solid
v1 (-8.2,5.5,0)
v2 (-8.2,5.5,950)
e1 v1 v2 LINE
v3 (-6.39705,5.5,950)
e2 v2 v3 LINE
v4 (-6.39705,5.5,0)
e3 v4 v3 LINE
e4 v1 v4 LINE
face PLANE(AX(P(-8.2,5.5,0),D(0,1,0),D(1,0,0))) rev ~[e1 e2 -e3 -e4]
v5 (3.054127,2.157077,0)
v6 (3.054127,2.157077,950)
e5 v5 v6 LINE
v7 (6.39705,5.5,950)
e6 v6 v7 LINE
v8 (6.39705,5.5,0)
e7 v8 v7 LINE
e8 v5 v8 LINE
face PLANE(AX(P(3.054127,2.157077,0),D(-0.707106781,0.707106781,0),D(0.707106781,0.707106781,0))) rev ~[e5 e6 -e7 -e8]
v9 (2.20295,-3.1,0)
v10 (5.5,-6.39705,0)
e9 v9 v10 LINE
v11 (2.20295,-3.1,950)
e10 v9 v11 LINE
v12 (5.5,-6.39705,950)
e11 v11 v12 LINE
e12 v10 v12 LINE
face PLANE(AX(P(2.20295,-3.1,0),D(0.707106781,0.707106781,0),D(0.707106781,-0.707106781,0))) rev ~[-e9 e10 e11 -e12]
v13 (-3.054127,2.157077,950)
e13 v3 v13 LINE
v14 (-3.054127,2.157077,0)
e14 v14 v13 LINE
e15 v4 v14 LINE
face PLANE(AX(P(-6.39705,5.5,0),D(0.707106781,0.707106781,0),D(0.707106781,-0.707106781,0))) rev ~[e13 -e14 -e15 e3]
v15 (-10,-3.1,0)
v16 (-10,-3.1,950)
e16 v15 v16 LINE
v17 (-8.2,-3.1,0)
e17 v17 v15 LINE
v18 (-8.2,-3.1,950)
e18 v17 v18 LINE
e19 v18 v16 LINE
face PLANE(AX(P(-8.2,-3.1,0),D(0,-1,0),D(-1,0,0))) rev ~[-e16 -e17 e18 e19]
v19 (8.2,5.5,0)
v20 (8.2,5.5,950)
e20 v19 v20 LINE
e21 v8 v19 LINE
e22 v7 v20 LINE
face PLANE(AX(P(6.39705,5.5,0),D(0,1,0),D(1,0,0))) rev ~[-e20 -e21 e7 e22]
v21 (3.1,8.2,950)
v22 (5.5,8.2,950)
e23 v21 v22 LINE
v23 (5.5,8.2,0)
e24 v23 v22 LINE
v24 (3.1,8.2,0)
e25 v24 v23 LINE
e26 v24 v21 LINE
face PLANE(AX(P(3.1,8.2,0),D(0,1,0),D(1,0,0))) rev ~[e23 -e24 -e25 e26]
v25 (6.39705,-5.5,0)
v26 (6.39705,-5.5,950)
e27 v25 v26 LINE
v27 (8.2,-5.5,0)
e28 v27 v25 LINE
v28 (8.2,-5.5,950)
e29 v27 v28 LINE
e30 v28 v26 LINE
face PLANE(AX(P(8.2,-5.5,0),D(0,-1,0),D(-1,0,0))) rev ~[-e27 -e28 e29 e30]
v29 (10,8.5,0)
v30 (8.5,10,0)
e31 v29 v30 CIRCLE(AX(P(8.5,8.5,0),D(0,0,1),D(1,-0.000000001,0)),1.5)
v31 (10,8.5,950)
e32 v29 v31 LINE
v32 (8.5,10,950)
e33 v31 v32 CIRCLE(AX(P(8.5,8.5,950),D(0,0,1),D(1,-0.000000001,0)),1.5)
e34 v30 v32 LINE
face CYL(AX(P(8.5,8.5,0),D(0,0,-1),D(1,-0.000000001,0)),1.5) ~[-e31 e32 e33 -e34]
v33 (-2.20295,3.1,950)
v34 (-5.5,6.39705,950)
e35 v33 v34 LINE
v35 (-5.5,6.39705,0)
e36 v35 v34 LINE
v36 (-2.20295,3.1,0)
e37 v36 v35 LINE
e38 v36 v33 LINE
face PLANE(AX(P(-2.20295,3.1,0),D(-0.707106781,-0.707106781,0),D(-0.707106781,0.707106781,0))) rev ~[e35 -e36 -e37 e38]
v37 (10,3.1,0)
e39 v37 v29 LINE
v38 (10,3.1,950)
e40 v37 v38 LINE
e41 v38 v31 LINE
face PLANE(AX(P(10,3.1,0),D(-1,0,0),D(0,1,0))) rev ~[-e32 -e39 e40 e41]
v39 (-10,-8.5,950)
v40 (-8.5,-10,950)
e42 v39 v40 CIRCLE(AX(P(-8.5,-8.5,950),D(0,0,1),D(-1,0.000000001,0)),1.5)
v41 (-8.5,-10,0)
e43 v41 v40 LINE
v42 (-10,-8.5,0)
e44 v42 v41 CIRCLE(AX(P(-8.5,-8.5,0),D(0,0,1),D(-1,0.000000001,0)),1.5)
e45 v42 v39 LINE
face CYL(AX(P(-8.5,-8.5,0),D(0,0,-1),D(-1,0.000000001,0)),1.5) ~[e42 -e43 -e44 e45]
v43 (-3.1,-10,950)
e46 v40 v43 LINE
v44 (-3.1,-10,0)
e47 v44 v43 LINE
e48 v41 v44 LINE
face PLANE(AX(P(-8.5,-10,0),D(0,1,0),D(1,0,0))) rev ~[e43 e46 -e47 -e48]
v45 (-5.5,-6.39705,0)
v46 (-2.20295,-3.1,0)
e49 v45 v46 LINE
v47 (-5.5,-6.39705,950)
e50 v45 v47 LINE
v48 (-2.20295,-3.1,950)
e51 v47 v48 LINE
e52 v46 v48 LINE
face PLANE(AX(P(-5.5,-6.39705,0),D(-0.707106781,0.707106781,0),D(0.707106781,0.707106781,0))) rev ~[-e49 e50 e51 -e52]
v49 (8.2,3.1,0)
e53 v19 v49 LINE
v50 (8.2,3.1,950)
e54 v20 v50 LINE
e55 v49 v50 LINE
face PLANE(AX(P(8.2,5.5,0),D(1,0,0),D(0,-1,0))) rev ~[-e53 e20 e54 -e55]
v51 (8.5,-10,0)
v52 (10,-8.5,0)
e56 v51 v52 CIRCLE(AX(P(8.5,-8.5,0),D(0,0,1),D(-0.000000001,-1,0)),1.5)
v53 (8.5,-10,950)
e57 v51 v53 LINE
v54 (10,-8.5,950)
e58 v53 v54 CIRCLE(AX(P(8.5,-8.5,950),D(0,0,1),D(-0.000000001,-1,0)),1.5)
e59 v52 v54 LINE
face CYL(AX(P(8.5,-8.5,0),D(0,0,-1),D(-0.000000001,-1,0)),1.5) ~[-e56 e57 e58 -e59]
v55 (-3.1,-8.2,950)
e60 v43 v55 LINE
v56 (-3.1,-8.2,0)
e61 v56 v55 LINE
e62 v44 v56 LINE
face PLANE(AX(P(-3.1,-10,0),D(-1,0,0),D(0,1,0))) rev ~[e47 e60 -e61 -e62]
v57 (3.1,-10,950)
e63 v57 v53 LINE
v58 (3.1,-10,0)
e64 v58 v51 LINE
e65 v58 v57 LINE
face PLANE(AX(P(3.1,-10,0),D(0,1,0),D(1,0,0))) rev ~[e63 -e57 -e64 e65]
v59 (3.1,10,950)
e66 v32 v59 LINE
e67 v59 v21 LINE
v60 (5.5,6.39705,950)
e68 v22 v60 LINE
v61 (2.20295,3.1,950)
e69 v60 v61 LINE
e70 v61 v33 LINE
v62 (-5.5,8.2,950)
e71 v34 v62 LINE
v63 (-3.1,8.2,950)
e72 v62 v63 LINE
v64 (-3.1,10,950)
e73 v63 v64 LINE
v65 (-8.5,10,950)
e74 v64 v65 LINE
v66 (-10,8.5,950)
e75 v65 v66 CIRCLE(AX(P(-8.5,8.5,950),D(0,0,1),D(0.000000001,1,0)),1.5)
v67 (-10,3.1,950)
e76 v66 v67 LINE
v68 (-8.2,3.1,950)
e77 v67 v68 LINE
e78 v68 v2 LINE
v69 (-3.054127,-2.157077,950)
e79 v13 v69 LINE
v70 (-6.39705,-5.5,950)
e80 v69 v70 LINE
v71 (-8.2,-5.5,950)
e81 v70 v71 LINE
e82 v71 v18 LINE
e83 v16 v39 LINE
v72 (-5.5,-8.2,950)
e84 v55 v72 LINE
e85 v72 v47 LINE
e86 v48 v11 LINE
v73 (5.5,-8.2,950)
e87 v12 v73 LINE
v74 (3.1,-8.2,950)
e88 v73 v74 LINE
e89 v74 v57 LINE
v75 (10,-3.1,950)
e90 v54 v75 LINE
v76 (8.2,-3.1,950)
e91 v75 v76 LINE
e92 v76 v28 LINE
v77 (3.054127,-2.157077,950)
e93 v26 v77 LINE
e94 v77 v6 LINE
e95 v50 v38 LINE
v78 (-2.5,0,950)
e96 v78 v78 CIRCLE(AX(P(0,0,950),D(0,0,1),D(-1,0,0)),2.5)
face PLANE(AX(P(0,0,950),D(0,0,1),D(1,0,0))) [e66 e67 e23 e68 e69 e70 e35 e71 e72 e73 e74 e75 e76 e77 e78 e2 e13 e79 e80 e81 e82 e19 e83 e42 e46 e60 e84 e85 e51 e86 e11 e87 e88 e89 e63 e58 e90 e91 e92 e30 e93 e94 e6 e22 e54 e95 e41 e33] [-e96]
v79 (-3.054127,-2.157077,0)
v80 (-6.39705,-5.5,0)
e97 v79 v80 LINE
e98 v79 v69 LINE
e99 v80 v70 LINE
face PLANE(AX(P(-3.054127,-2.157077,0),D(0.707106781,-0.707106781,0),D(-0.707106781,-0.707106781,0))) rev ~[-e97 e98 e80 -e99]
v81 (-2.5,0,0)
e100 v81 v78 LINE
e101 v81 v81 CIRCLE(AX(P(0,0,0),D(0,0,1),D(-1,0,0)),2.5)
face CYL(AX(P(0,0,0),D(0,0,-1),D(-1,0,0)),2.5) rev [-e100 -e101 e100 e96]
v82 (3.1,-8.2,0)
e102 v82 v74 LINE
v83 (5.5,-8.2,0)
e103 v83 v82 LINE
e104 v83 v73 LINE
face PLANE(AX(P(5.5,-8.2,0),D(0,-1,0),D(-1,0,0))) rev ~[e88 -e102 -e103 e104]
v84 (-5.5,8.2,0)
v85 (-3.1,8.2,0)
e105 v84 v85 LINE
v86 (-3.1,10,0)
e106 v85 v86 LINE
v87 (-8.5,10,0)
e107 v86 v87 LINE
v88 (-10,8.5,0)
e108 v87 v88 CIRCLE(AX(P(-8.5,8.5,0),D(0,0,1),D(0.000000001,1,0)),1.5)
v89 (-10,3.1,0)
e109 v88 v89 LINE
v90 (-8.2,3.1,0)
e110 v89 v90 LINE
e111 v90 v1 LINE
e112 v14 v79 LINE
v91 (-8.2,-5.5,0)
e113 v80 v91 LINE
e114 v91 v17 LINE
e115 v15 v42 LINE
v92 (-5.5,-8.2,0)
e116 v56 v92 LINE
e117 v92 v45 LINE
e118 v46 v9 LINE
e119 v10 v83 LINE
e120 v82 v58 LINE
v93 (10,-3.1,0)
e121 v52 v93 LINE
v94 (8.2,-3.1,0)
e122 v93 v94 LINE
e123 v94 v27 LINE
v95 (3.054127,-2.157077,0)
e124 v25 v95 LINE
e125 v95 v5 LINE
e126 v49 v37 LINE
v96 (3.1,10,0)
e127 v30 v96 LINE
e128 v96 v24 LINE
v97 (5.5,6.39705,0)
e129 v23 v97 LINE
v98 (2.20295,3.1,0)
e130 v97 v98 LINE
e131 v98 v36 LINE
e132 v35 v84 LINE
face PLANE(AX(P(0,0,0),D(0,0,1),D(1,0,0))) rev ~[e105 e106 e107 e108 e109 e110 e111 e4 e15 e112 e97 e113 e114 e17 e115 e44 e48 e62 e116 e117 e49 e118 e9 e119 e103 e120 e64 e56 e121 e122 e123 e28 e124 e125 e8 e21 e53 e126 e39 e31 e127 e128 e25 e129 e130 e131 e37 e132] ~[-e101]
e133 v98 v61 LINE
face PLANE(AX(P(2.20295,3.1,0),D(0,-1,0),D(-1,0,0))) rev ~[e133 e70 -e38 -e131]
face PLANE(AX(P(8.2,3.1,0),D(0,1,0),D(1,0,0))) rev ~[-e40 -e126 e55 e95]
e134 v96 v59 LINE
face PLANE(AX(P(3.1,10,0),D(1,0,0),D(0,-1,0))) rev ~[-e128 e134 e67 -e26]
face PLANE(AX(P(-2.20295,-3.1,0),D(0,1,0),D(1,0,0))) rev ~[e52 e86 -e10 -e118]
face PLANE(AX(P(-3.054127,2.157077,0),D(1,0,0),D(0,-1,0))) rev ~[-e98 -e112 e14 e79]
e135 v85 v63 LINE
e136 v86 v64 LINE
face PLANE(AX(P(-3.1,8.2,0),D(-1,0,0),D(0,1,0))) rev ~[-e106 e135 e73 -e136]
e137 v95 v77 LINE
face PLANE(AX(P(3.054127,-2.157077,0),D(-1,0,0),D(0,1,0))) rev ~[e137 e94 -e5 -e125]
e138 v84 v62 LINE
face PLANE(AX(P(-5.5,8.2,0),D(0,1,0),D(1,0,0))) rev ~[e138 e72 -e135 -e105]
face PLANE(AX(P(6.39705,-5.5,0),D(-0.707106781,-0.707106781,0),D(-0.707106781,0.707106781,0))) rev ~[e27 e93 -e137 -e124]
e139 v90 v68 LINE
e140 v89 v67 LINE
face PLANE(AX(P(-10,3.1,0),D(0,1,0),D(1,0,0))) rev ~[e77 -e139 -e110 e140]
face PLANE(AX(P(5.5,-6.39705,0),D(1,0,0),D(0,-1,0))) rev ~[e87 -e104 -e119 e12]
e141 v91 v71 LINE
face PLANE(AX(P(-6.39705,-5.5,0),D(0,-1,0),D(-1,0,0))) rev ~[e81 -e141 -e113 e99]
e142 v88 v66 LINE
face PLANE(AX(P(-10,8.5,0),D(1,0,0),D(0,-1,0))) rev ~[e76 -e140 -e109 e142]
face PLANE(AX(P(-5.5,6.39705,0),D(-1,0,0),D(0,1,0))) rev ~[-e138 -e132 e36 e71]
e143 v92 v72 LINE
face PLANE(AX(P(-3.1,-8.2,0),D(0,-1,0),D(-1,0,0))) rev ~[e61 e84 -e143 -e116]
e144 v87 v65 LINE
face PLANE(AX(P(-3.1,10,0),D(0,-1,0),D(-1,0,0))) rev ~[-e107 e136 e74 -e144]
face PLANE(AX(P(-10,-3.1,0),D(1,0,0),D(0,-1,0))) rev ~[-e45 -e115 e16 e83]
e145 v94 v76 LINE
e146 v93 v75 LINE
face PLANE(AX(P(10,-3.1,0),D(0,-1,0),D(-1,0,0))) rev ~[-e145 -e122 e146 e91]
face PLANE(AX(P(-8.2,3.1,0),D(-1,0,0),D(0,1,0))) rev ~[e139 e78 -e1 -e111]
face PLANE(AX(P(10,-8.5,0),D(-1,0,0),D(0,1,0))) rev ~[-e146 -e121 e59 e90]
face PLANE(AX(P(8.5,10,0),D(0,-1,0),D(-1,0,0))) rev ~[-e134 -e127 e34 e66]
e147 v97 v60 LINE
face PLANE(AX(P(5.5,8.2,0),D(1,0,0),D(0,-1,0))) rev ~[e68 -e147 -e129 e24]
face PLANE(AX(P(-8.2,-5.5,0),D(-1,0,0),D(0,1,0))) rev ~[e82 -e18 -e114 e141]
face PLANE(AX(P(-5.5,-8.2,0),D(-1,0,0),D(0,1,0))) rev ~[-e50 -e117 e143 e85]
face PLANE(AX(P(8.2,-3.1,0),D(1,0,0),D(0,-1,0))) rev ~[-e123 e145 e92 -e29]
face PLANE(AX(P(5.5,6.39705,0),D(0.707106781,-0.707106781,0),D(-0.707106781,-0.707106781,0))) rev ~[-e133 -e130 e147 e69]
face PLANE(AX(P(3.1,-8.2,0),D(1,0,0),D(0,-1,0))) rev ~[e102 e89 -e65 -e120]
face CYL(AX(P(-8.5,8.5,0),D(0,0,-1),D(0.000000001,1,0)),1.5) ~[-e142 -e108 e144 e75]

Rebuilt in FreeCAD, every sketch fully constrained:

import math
import FreeCAD as App
import Part
import Sketcher

V = App.Vector

doc = App.newDocument("Part")
params = doc.addObject("Spreadsheet::Sheet", "Params")
for row, (alias, value) in enumerate([
    ("sketch1_diameter", "5 mm"),
    ("sketch1_radius", "1.5 mm"),
    ("sketch1_width", "1.8 mm"),
    ("sketch1_width2", "5.4 mm"),
    ("sketch1_width3", "2.4 mm"),
    ("pad1_length", "950 mm"),
], start=1):
    params.set(f"A{row}", alias)
    params.set(f"B{row}", "=" + value)
    params.setAlias(f"B{row}", alias)

body = doc.addObject("PartDesign::Body", "Body")

sketch1 = body.newObject("Sketcher::SketchObject", "Sketch")
sketch1.AttachmentSupport = (doc.getObject("XY_Plane"), [""])
sketch1.MapMode = "FlatFace"
sketch1.addGeometry([
    Part.LineSegment(V(-8.2, -3.1, 0), V(-10, -3.1, 0)),
    Part.LineSegment(V(-10, -3.1, 0), V(-10, -8.5, 0)),
    Part.ArcOfCircle(Part.Circle(V(-8.5, -8.5, 0), V(0, 0, 1), 1.5), math.radians(180), math.radians(270)),
    Part.LineSegment(V(-8.5, -10, 0), V(-3.1, -10, 0)),
    Part.LineSegment(V(-3.1, -10, 0), V(-3.1, -8.2, 0)),
    Part.LineSegment(V(-3.1, -8.2, 0), V(-5.5, -8.2, 0)),
    Part.LineSegment(V(-5.5, -8.2, 0), V(-5.5, -6.4, 0)),
    Part.LineSegment(V(-5.5, -6.4, 0), V(-2.2, -3.1, 0)),
    Part.LineSegment(V(-2.2, -3.1, 0), V(2.2, -3.1, 0)),
    Part.LineSegment(V(2.2, -3.1, 0), V(5.5, -6.4, 0)),
    Part.LineSegment(V(5.5, -6.4, 0), V(5.5, -8.2, 0)),
    Part.LineSegment(V(5.5, -8.2, 0), V(3.1, -8.2, 0)),
    Part.LineSegment(V(3.1, -8.2, 0), V(3.1, -10, 0)),
    Part.LineSegment(V(3.1, -10, 0), V(8.5, -10, 0)),
    Part.ArcOfCircle(Part.Circle(V(8.5, -8.5, 0), V(0, 0, 1), 1.5), math.radians(-90), math.radians(0)),
    Part.LineSegment(V(10, -8.5, 0), V(10, -3.1, 0)),
    Part.LineSegment(V(10, -3.1, 0), V(8.2, -3.1, 0)),
    Part.LineSegment(V(8.2, -3.1, 0), V(8.2, -5.5, 0)),
    Part.LineSegment(V(8.2, -5.5, 0), V(6.4, -5.5, 0)),
    Part.LineSegment(V(6.4, -5.5, 0), V(3.1, -2.2, 0)),
    Part.LineSegment(V(3.1, -2.2, 0), V(3.1, 2.2, 0)),
    Part.LineSegment(V(3.1, 2.2, 0), V(6.4, 5.5, 0)),
    Part.LineSegment(V(6.4, 5.5, 0), V(8.2, 5.5, 0)),
    Part.LineSegment(V(8.2, 5.5, 0), V(8.2, 3.1, 0)),
    Part.LineSegment(V(8.2, 3.1, 0), V(10, 3.1, 0)),
    Part.LineSegment(V(10, 3.1, 0), V(10, 8.5, 0)),
    Part.ArcOfCircle(Part.Circle(V(8.5, 8.5, 0), V(0, 0, 1), 1.5), math.radians(0), math.radians(90)),
    Part.LineSegment(V(8.5, 10, 0), V(3.1, 10, 0)),
    Part.LineSegment(V(3.1, 10, 0), V(3.1, 8.2, 0)),
    Part.LineSegment(V(3.1, 8.2, 0), V(5.5, 8.2, 0)),
    Part.LineSegment(V(5.5, 8.2, 0), V(5.5, 6.4, 0)),
    Part.LineSegment(V(5.5, 6.4, 0), V(2.2, 3.1, 0)),
    Part.LineSegment(V(2.2, 3.1, 0), V(-2.2, 3.1, 0)),
    Part.LineSegment(V(-2.2, 3.1, 0), V(-5.5, 6.4, 0)),
    Part.LineSegment(V(-5.5, 6.4, 0), V(-5.5, 8.2, 0)),
    Part.LineSegment(V(-5.5, 8.2, 0), V(-3.1, 8.2, 0)),
    Part.LineSegment(V(-3.1, 8.2, 0), V(-3.1, 10, 0)),
    Part.LineSegment(V(-3.1, 10, 0), V(-8.5, 10, 0)),
    Part.ArcOfCircle(Part.Circle(V(-8.5, 8.5, 0), V(0, 0, 1), 1.5), math.radians(90), math.radians(180)),
    Part.LineSegment(V(-10, 8.5, 0), V(-10, 3.1, 0)),
    Part.LineSegment(V(-10, 3.1, 0), V(-8.2, 3.1, 0)),
    Part.LineSegment(V(-8.2, 3.1, 0), V(-8.2, 5.5, 0)),
    Part.LineSegment(V(-8.2, 5.5, 0), V(-6.4, 5.5, 0)),
    Part.LineSegment(V(-6.4, 5.5, 0), V(-3.1, 2.2, 0)),
    Part.LineSegment(V(-3.1, 2.2, 0), V(-3.1, -2.2, 0)),
    Part.LineSegment(V(-3.1, -2.2, 0), V(-6.4, -5.5, 0)),
    Part.LineSegment(V(-6.4, -5.5, 0), V(-8.2, -5.5, 0)),
    Part.LineSegment(V(-8.2, -5.5, 0), V(-8.2, -3.1, 0)),
    Part.Circle(V(0, 0, 0), V(0, 0, 1), 2.5),
], False)
sketch1.addConstraint([
    Sketcher.Constraint("Coincident", 0, 2, 1, 1),
    Sketcher.Constraint("Tangent", 1, 2, 2, 1),
    Sketcher.Constraint("Tangent", 2, 2, 3, 1),
    Sketcher.Constraint("Coincident", 3, 2, 4, 1),
    Sketcher.Constraint("Coincident", 4, 2, 5, 1),
    Sketcher.Constraint("Coincident", 5, 2, 6, 1),
    Sketcher.Constraint("Coincident", 6, 2, 7, 1),
    Sketcher.Constraint("Coincident", 7, 2, 8, 1),
    Sketcher.Constraint("Coincident", 8, 2, 9, 1),
    Sketcher.Constraint("Coincident", 9, 2, 10, 1),
    Sketcher.Constraint("Coincident", 10, 2, 11, 1),
    Sketcher.Constraint("Coincident", 11, 2, 12, 1),
    Sketcher.Constraint("Coincident", 12, 2, 13, 1),
    Sketcher.Constraint("Tangent", 13, 2, 14, 1),
    Sketcher.Constraint("Tangent", 14, 2, 15, 1),
    Sketcher.Constraint("Coincident", 15, 2, 16, 1),
    Sketcher.Constraint("Coincident", 16, 2, 17, 1),
    Sketcher.Constraint("Coincident", 17, 2, 18, 1),
    Sketcher.Constraint("Coincident", 18, 2, 19, 1),
    Sketcher.Constraint("Coincident", 19, 2, 20, 1),
    Sketcher.Constraint("Coincident", 20, 2, 21, 1),
    Sketcher.Constraint("Coincident", 21, 2, 22, 1),
    Sketcher.Constraint("Coincident", 22, 2, 23, 1),
    Sketcher.Constraint("Coincident", 23, 2, 24, 1),
    Sketcher.Constraint("Coincident", 24, 2, 25, 1),
    Sketcher.Constraint("Tangent", 25, 2, 26, 1),
    Sketcher.Constraint("Tangent", 26, 2, 27, 1),
    Sketcher.Constraint("Coincident", 27, 2, 28, 1),
    Sketcher.Constraint("Coincident", 28, 2, 29, 1),
    Sketcher.Constraint("Coincident", 29, 2, 30, 1),
    Sketcher.Constraint("Coincident", 30, 2, 31, 1),
    Sketcher.Constraint("Coincident", 31, 2, 32, 1),
    Sketcher.Constraint("Coincident", 32, 2, 33, 1),
    Sketcher.Constraint("Coincident", 33, 2, 34, 1),
    Sketcher.Constraint("Coincident", 34, 2, 35, 1),
    Sketcher.Constraint("Coincident", 35, 2, 36, 1),
    Sketcher.Constraint("Coincident", 36, 2, 37, 1),
    Sketcher.Constraint("Tangent", 37, 2, 38, 1),
    Sketcher.Constraint("Tangent", 38, 2, 39, 1),
    Sketcher.Constraint("Coincident", 39, 2, 40, 1),
    Sketcher.Constraint("Coincident", 40, 2, 41, 1),
    Sketcher.Constraint("Coincident", 41, 2, 42, 1),
    Sketcher.Constraint("Coincident", 42, 2, 43, 1),
    Sketcher.Constraint("Coincident", 43, 2, 44, 1),
    Sketcher.Constraint("Coincident", 44, 2, 45, 1),
    Sketcher.Constraint("Coincident", 45, 2, 46, 1),
    Sketcher.Constraint("Coincident", 46, 2, 47, 1),
    Sketcher.Constraint("Coincident", 47, 2, 0, 1),
    Sketcher.Constraint("Horizontal", 0),
    Sketcher.Constraint("Vertical", 1),
    Sketcher.Constraint("Horizontal", 3),
    Sketcher.Constraint("Vertical", 4),
    Sketcher.Constraint("Horizontal", 5),
    Sketcher.Constraint("Vertical", 6),
    Sketcher.Constraint("Horizontal", 8),
    Sketcher.Constraint("Vertical", 10),
    Sketcher.Constraint("Horizontal", 11),
    Sketcher.Constraint("Vertical", 12),
    Sketcher.Constraint("Horizontal", 13),
    Sketcher.Constraint("Vertical", 15),
    Sketcher.Constraint("Horizontal", 16),
    Sketcher.Constraint("Vertical", 17),
    Sketcher.Constraint("Horizontal", 18),
    Sketcher.Constraint("Vertical", 20),
    Sketcher.Constraint("Horizontal", 22),
    Sketcher.Constraint("Vertical", 23),
    Sketcher.Constraint("Horizontal", 24),
    Sketcher.Constraint("Vertical", 25),
    Sketcher.Constraint("Horizontal", 27),
    Sketcher.Constraint("Vertical", 28),
    Sketcher.Constraint("Horizontal", 29),
    Sketcher.Constraint("Vertical", 30),
    Sketcher.Constraint("Horizontal", 32),
    Sketcher.Constraint("Vertical", 34),
    Sketcher.Constraint("Horizontal", 35),
    Sketcher.Constraint("Vertical", 36),
    Sketcher.Constraint("Horizontal", 37),
    Sketcher.Constraint("Vertical", 39),
    Sketcher.Constraint("Horizontal", 40),
    Sketcher.Constraint("Vertical", 41),
    Sketcher.Constraint("Horizontal", 42),
    Sketcher.Constraint("Vertical", 44),
    Sketcher.Constraint("Horizontal", 46),
    Sketcher.Constraint("Vertical", 47),
    Sketcher.Constraint("Coincident", 48, 3, -1, 1),
    Sketcher.Constraint("Equal", 2, 14),
    Sketcher.Constraint("Equal", 14, 26),
    Sketcher.Constraint("Equal", 26, 38),
    Sketcher.Constraint("Symmetric", 2, 3, 26, 3, -1, 1),
    Sketcher.Constraint("Symmetric", 14, 3, 38, 3, -1, 1),
    Sketcher.Constraint("Symmetric", 4, 2, 28, 2, -1, 1),
    Sketcher.Constraint("Symmetric", 6, 2, 30, 2, -1, 1),
    Sketcher.Constraint("Symmetric", 7, 2, 31, 2, -1, 1),
    Sketcher.Constraint("Symmetric", 9, 2, 33, 2, -1, 1),
    Sketcher.Constraint("Symmetric", 11, 2, 35, 2, -1, 1),
    Sketcher.Constraint("Symmetric", 16, 2, 40, 2, -1, 1),
    Sketcher.Constraint("Symmetric", 18, 2, 42, 2, -1, 1),
    Sketcher.Constraint("Symmetric", 19, 2, 43, 2, -1, 1),
    Sketcher.Constraint("Symmetric", 21, 2, 45, 2, -1, 1),
    Sketcher.Constraint("Symmetric", 23, 2, 47, 2, -1, 1),
    Sketcher.Constraint("Symmetric", 2, 3, 14, 3, -2),
    Sketcher.Constraint("Symmetric", 6, 2, 9, 2, -2),
    Sketcher.Constraint("Symmetric", 4, 2, 11, 2, -2),
    Sketcher.Constraint("Symmetric", 23, 2, 40, 2, -2),
    Sketcher.Constraint("Symmetric", 21, 2, 42, 2, -2),
    Sketcher.Constraint("Perpendicular", 7, 9),
    Sketcher.Constraint("Parallel", 9, 19),
    Sketcher.Constraint("Perpendicular", 19, 21),
    Sketcher.Constraint("Perpendicular", 31, 33),
    Sketcher.Constraint("Perpendicular", 43, 45),
    Sketcher.Constraint("Horizontal", 0, 2, 7, 2),
    Sketcher.Constraint("Horizontal", 20, 2, 43, 2),
    Sketcher.Constraint("Equal", 37, 1),
    Sketcher.Constraint("Equal", 40, 4),
    Sketcher.Constraint("Equal", 46, 6),
    Sketcher.Constraint("Equal", 35, 17),
    Sketcher.Constraint("Diameter", 48, 5.0),
    Sketcher.Constraint("Radius", 2, 1.5),
    Sketcher.Constraint("DistanceX", 0, 2, 0, 1, 1.8),
    Sketcher.Constraint("DistanceX", 3, 1, 3, 2, 5.4),
    Sketcher.Constraint("DistanceX", 5, 2, 5, 1, 2.4),
    Sketcher.Constraint("DistanceX", 0, 2, -1, 1, 10.0),
    Sketcher.Constraint("DistanceY", 2, 2, -1, 1, 10.0),
    Sketcher.Constraint("DistanceX", 8, 1, 8, 2, 4.4059),
    Sketcher.Constraint("DistanceY", 20, 1, 20, 2, 4.314154),
])
sketch1.setExpression("Constraints[116]", "Params.sketch1_diameter")
sketch1.setExpression("Constraints[117]", "Params.sketch1_radius")
sketch1.setExpression("Constraints[118]", "Params.sketch1_width")
sketch1.setExpression("Constraints[119]", "Params.sketch1_width2")
sketch1.setExpression("Constraints[120]", "Params.sketch1_width3")
pad1 = body.newObject("PartDesign::Pad", "Pad")
pad1.Profile = sketch1
pad1.setExpression("Length", "Params.pad1_length")

doc.recompute()
